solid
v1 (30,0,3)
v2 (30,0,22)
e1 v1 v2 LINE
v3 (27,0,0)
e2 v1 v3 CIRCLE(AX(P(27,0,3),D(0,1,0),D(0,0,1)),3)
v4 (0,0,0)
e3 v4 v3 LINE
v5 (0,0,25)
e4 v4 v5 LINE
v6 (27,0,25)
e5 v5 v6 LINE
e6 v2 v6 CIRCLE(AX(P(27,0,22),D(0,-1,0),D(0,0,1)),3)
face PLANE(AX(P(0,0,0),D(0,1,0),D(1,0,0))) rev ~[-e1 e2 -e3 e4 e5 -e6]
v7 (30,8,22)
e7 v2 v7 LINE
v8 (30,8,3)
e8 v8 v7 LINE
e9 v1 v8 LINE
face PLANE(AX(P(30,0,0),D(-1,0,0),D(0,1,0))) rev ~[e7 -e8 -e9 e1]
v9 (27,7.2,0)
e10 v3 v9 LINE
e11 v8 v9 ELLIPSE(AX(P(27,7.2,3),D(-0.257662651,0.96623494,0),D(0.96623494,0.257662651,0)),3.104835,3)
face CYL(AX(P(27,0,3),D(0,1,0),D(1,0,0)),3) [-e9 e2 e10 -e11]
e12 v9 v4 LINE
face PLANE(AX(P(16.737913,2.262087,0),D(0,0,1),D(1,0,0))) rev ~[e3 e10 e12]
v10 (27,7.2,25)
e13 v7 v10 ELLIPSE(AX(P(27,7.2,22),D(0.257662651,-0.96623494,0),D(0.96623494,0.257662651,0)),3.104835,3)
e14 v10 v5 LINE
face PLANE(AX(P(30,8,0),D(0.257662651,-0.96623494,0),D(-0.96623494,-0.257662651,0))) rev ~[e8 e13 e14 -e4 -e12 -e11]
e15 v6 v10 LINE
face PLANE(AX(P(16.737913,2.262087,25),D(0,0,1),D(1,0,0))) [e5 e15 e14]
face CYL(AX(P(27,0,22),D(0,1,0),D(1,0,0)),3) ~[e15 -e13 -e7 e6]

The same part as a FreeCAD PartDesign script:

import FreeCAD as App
import Part
import Sketcher

V = App.Vector


def edges_at(feature, points):
    """Names of the edges that pass closest to the given points."""
    edges = feature.Shape.Edges
    near = lambda p: min(range(len(edges)), key=lambda i: edges[i].distToShape(Part.Vertex(*p))[0])
    return sorted({f"Edge{near(p) + 1}" for p in points})


def add_polygon(sketch, points):
    """Adds a closed chain of lines whose ends are joined by coincident constraints."""
    first, n = sketch.GeometryCount, len(points)
    for a, b in zip(points, points[1:] + points[:1]):
        sketch.addGeometry(Part.LineSegment(App.Vector(*a, 0), App.Vector(*b, 0)), False)
    for i in range(n):
        sketch.addConstraint(Sketcher.Constraint("Coincident", first + i, 2, first + (i + 1) % n, 1))

doc = App.newDocument("Part")
body = doc.addObject("PartDesign::Body", "Body")

sketch1 = body.newObject("Sketcher::SketchObject", "Sketch")
sketch1.AttachmentSupport = (doc.getObject("XY_Plane"), [""])
sketch1.MapMode = "FlatFace"
add_polygon(sketch1, [(30, 8), (0, 0), (30, 0)])
sketch1.addConstraint(Sketcher.Constraint("Horizontal", 1))
sketch1.addConstraint(Sketcher.Constraint("Vertical", 2))
sketch1.addConstraint(Sketcher.Constraint("Coincident", 0, 2, -1, 1))
sketch1.addConstraint(Sketcher.Constraint("DistanceX", 1, 1, 1, 2, 30.0))
sketch1.addConstraint(Sketcher.Constraint("DistanceY", 2, 1, 2, 2, 8.0))
pad1 = body.newObject("PartDesign::Pad", "Pad")
pad1.Profile = sketch1
pad1.Length = 25
doc.recompute()

fillet = body.newObject("PartDesign::Fillet", "Fillet")
fillet.Base = (pad1, edges_at(pad1, [(30, 4, 25), (30, 4, 0)]))
fillet.Radius = 3

doc.recompute()
